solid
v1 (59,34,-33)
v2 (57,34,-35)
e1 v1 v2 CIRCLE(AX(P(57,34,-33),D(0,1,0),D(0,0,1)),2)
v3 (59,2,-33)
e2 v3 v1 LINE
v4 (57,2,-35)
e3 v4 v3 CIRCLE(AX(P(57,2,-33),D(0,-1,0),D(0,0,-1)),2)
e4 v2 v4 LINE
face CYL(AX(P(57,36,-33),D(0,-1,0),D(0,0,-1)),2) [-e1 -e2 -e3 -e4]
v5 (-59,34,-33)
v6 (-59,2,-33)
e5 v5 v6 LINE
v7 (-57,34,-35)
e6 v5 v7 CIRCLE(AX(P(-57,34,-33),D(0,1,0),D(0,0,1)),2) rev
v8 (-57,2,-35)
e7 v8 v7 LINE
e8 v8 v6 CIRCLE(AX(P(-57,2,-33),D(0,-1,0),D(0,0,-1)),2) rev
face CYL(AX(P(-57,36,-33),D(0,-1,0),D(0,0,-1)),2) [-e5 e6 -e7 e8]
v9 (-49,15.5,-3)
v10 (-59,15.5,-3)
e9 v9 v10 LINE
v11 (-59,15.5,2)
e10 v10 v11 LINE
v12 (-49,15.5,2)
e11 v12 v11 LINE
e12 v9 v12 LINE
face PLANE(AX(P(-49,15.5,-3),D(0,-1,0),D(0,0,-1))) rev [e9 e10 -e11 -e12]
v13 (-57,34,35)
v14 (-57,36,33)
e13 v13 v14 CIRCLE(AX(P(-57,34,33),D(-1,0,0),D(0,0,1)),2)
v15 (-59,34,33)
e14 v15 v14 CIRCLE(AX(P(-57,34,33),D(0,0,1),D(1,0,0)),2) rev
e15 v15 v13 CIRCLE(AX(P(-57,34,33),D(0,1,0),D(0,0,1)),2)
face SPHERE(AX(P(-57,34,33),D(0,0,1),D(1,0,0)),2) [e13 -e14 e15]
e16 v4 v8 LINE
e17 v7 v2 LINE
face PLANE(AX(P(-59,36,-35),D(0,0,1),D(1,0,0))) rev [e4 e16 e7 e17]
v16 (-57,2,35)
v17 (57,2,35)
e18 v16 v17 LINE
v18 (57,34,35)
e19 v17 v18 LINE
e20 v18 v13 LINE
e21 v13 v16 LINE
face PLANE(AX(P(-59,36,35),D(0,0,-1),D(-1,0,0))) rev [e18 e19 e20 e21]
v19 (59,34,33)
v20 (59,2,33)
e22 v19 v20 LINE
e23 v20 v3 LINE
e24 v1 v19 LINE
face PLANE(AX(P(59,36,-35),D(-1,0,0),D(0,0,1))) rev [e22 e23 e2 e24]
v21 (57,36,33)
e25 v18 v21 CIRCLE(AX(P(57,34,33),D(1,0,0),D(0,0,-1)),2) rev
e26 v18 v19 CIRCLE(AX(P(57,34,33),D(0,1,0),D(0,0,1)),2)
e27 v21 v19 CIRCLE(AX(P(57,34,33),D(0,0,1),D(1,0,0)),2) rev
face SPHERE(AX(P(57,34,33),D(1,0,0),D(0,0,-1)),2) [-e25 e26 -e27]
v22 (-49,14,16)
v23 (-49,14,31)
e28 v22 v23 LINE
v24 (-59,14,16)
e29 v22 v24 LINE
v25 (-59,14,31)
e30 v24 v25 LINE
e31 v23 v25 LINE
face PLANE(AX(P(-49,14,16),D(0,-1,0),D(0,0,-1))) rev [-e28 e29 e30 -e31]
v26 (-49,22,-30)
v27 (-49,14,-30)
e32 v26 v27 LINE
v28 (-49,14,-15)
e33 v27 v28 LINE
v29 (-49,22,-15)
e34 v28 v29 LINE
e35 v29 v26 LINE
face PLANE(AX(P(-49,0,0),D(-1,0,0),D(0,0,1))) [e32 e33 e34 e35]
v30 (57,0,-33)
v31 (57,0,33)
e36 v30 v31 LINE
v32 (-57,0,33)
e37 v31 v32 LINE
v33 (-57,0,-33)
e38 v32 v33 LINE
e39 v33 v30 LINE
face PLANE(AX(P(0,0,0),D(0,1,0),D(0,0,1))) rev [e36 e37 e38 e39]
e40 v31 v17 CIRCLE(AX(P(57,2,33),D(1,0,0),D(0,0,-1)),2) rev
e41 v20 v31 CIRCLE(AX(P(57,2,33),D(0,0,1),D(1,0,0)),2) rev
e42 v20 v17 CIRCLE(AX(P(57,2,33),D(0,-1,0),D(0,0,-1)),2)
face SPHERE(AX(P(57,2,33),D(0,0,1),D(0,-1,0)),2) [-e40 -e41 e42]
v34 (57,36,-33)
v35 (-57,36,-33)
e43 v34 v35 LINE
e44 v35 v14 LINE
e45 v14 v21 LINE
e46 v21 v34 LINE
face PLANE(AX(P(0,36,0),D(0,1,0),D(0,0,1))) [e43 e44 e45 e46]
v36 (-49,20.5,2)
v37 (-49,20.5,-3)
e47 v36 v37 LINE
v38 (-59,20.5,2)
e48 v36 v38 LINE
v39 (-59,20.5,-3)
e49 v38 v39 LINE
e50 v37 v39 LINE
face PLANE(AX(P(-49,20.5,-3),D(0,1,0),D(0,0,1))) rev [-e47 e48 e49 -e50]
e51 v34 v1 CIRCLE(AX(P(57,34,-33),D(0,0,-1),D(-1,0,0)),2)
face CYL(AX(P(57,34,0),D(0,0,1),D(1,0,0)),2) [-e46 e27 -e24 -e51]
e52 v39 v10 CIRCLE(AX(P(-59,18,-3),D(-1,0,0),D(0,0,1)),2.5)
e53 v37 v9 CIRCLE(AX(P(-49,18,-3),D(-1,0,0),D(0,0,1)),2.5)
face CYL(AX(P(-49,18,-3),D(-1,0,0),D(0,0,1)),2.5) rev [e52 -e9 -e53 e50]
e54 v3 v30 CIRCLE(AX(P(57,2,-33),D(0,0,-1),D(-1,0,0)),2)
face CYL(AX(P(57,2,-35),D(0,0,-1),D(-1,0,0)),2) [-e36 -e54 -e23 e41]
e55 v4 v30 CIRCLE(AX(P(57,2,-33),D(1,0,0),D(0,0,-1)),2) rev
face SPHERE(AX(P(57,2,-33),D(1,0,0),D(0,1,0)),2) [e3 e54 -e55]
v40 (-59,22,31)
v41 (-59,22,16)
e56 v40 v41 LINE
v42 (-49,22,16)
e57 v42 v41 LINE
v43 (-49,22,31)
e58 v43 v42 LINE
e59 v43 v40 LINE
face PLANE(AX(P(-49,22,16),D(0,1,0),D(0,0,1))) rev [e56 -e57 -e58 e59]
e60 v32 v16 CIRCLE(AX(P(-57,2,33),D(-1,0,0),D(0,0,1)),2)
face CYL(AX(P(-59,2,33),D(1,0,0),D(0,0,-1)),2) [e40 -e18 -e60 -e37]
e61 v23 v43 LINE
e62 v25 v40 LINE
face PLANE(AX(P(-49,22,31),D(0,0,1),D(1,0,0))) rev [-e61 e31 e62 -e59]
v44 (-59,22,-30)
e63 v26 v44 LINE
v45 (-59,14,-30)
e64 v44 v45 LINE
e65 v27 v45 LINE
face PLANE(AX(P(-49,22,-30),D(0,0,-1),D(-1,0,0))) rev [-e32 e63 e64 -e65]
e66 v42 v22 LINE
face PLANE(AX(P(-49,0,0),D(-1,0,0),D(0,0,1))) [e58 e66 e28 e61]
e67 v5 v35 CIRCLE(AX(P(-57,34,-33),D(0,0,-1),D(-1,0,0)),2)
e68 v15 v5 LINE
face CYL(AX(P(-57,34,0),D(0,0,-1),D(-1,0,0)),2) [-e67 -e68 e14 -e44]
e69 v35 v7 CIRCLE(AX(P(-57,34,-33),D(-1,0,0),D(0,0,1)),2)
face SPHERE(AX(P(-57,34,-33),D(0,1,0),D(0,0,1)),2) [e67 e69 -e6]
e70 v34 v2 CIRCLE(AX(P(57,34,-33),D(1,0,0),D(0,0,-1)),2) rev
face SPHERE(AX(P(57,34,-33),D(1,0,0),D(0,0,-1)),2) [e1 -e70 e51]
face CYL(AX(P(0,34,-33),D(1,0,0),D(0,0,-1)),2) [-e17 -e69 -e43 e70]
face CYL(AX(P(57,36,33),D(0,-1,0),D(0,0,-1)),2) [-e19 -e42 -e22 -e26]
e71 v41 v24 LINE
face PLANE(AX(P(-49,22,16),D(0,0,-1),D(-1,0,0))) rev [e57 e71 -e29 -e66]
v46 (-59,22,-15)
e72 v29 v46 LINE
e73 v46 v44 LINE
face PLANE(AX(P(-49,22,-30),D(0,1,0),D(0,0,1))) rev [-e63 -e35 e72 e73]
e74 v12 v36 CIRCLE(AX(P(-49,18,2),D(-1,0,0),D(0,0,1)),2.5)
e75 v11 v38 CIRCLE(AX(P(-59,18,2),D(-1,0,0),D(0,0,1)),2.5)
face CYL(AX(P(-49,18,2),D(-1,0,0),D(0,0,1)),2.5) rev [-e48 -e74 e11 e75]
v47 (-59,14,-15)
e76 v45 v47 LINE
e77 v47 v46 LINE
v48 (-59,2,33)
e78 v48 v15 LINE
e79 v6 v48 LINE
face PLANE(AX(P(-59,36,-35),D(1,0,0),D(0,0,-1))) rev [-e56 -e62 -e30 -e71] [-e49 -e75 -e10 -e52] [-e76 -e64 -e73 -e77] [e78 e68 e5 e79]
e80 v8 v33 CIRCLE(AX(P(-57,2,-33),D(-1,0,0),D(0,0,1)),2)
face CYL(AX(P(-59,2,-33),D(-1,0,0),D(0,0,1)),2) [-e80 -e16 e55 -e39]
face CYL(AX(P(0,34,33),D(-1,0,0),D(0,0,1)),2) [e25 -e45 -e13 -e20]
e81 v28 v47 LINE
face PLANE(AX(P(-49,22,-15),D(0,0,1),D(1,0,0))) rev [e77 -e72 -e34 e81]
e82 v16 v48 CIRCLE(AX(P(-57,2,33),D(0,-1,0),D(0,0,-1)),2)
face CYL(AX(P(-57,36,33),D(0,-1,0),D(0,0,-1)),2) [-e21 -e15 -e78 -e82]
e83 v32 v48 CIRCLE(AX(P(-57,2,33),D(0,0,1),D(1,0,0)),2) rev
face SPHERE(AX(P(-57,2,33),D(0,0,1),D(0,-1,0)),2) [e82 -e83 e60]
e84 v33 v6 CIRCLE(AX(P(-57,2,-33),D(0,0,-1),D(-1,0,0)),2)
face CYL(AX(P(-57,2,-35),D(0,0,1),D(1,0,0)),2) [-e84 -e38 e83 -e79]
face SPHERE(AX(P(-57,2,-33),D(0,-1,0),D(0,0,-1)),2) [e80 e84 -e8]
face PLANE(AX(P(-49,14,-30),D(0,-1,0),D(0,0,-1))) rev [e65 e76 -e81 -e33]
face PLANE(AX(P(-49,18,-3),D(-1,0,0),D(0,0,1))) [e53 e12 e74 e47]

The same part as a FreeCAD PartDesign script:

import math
import FreeCAD as App
import Part
import Sketcher
from FreeCAD import Vector


def add_polygon(sketch, points):
    """Adds a closed chain of lines whose ends are joined by coincident constraints."""
    first, n = sketch.GeometryCount, len(points)
    for a, b in zip(points, points[1:] + points[:1]):
        sketch.addGeometry(Part.LineSegment(App.Vector(*a, 0), App.Vector(*b, 0)), False)
    for i in range(n):
        sketch.addConstraint(Sketcher.Constraint("Coincident", first + i, 2, first + (i + 1) % n, 1))

doc = App.newDocument("Part")
body = doc.addObject("PartDesign::Body", "Body")

# Sketch on XZ plane
sketch1 = doc.addObject("Sketcher::SketchObject", "Sketch")
body.addObject(sketch1)
sketch1.AttachmentSupport = (doc.XZ_Plane, [""])
sketch1.MapMode = "FlatFace"
add_polygon(sketch1, [(-59, -35), (-59, 35), (59, 35), (59, -35)])  # lines 0-3
sketch1.addConstraint([
    Sketcher.Constraint("Vertical", 0),
    Sketcher.Constraint("Horizontal", 1),
    Sketcher.Constraint("Vertical", 2),
    Sketcher.Constraint("Horizontal", 3),
    Sketcher.Constraint("Symmetric", 0, 2, 2, 2, -1, 1),
    Sketcher.Constraint("DistanceX", 1, 1, 1, 2, 118.0),
    Sketcher.Constraint("DistanceY", 0, 1, 0, 2, 70.0),
])
pad1 = doc.addObject("PartDesign::Pad", "Pad")
body.addObject(pad1)
pad1.Profile = sketch1
pad1.Length = 36
pad1.Reversed = True
doc.recompute()

fillet = doc.addObject("PartDesign::Fillet", "Fillet")
body.addObject(fillet)
fillet.Base = (pad1, ["Edge1"])
fillet.UseAllEdges = True
fillet.Radius = 2

# Sketch on YZ plane
sketch2 = doc.addObject("Sketcher::SketchObject", "Sketch001")
body.addObject(sketch2)
sketch2.AttachmentSupport = (doc.YZ_Plane, [""])
sketch2.MapMode = "FlatFace"
sketch2.AttachmentOffset = App.Placement(Vector(0, 0, -59), App.Rotation())
add_polygon(sketch2, [(22, -30), (14, -30), (14, -15), (22, -15)])  # lines 0-3
add_polygon(sketch2, [(22, 16), (14, 16), (14, 31), (22, 31)])  # lines 4-7
sketch2.addGeometry(Part.LineSegment(Vector(20.5, 2, 0), Vector(20.5, -3, 0)), False)  # 8
sketch2.addGeometry(Part.ArcOfCircle(Part.Circle(Vector(18, -3, 0), Vector(0, 0, 1), 2.5), math.radians(180), math.radians(360)), False)  # 9
sketch2.addGeometry(Part.LineSegment(Vector(15.5, -3, 0), Vector(15.5, 2, 0)), False)  # 10
sketch2.addGeometry(Part.ArcOfCircle(Part.Circle(Vector(18, 2, 0), Vector(0, 0, 1), 2.5), math.radians(0), math.radians(180)), False)  # 11
sketch2.addConstraint([
    Sketcher.Constraint("Tangent", 8, 2, 9, 2),
    Sketcher.Constraint("Tangent", 9, 1, 10, 1),
    Sketcher.Constraint("Tangent", 10, 2, 11, 2),
    Sketcher.Constraint("Tangent", 11, 1, 8, 1),
    Sketcher.Constraint("Horizontal", 0),
    Sketcher.Constraint("Vertical", 1),
    Sketcher.Constraint("Horizontal", 2),
    Sketcher.Constraint("Vertical", 3),
    Sketcher.Constraint("Horizontal", 4),
    Sketcher.Constraint("Vertical", 5),
    Sketcher.Constraint("Horizontal", 6),
    Sketcher.Constraint("Vertical", 7),
    Sketcher.Constraint("Vertical", 8),
    Sketcher.Constraint("Vertical", 10),
    Sketcher.Constraint("Vertical", 1, 2, 4, 2),
    Sketcher.Constraint("Vertical", 3, 2, 6, 2),
    Sketcher.Constraint("Equal", 3, 5),
    Sketcher.Constraint("Radius", 9, 2.5),
    Sketcher.Constraint("DistanceX", 0, 2, 0, 1, 8.0),
    Sketcher.Constraint("DistanceY", 1, 1, 1, 2, 15.0),
    Sketcher.Constraint("DistanceY", 8, 2, 8, 1, 5.0),
    Sketcher.Constraint("DistanceX", -1, 1, 9, 3, 18.0),
    Sketcher.Constraint("DistanceY", 9, 3, -1, 1, 3.0),
    Sketcher.Constraint("DistanceX", -1, 1, 0, 2, 14.0),
    Sketcher.Constraint("DistanceY", 0, 2, -1, 1, 30.0),
    Sketcher.Constraint("DistanceY", -1, 1, 4, 2, 16.0),
])
pocket1 = doc.addObject("PartDesign::Pocket", "Pocket")
body.addObject(pocket1)
pocket1.Profile = sketch2
pocket1.Length = 10
pocket1.Reversed = True

doc.recompute()
